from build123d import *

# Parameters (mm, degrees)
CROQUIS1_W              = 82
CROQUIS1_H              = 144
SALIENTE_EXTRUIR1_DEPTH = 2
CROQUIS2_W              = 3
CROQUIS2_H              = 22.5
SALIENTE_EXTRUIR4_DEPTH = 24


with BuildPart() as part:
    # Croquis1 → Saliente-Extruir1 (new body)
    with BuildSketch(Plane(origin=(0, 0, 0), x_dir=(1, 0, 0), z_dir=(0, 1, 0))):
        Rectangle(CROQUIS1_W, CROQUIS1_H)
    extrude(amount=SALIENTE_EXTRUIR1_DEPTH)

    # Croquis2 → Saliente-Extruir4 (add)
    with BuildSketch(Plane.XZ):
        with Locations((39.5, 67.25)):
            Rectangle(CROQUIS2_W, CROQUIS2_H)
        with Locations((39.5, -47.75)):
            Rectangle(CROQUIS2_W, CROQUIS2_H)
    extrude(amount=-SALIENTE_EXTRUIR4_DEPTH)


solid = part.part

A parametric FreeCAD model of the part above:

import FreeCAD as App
import Part
import Sketcher
from FreeCAD import Vector

doc = App.newDocument("Part")
body = doc.addObject("PartDesign::Body", "Body")

# Sketch on XZ plane
sketch1 = doc.addObject("Sketcher::SketchObject", "Sketch")
body.addObject(sketch1)
sketch1.AttachmentSupport = (doc.XZ_Plane, [""])
sketch1.MapMode = "FlatFace"
sketch1.addGeometry(Part.LineSegment(Vector(-41, -72, 0), Vector(-41, 72, 0)), False)
sketch1.addGeometry(Part.LineSegment(Vector(-41, 72, 0), Vector(41, 72, 0)), False)
sketch1.addGeometry(Part.LineSegment(Vector(41, 72, 0), Vector(41, -72, 0)), False)
sketch1.addGeometry(Part.LineSegment(Vector(41, -72, 0), Vector(-41, -72, 0)), False)
sketch1.addConstraint(Sketcher.Constraint("Coincident", 0, 2, 1, 1))
sketch1.addConstraint(Sketcher.Constraint("Coincident", 1, 2, 2, 1))
sketch1.addConstraint(Sketcher.Constraint("Coincident", 2, 2, 3, 1))
sketch1.addConstraint(Sketcher.Constraint("Coincident", 3, 2, 0, 1))
sketch1.addConstraint(Sketcher.Constraint("Vertical", 0))
sketch1.addConstraint(Sketcher.Constraint("Horizontal", 1))
sketch1.addConstraint(Sketcher.Constraint("Vertical", 2))
sketch1.addConstraint(Sketcher.Constraint("Horizontal", 3))
sketch1.addConstraint(Sketcher.Constraint("Symmetric", 0, 2, 2, 2, -1, 1))
sketch1.addConstraint(Sketcher.Constraint("DistanceX", 1, 1, 1, 2, 82.0))
sketch1.addConstraint(Sketcher.Constraint("DistanceY", 0, 1, 0, 2, 144.0))
pad1 = doc.addObject("PartDesign::Pad", "Pad")
body.addObject(pad1)
pad1.Profile = sketch1
pad1.Length = 2
pad1.Reversed = True

# Sketch on XZ plane
sketch2 = doc.addObject("Sketcher::SketchObject", "Sketch001")
body.addObject(sketch2)
sketch2.AttachmentSupport = (doc.XZ_Plane, [""])
sketch2.MapMode = "FlatFace"
sketch2.addGeometry(Part.LineSegment(Vector(38, 78.5, 0), Vector(38, 56, 0)), False)
sketch2.addGeometry(Part.LineSegment(Vector(38, 56, 0), Vector(41, 56, 0)), False)
sketch2.addGeometry(Part.LineSegment(Vector(41, 56, 0), Vector(41, 78.5, 0)), False)
sketch2.addGeometry(Part.LineSegment(Vector(41, 78.5, 0), Vector(38, 78.5, 0)), False)
sketch2.addGeometry(Part.LineSegment(Vector(38, -36.5, 0), Vector(38, -59, 0)), False)
sketch2.addGeometry(Part.LineSegment(Vector(38, -59, 0), Vector(41, -59, 0)), False)
sketch2.addGeometry(Part.LineSegment(Vector(41, -59, 0), Vector(41, -36.5, 0)), False)
sketch2.addGeometry(Part.LineSegment(Vector(41, -36.5, 0), Vector(38, -36.5, 0)), False)
sketch2.addConstraint(Sketcher.Constraint("Coincident", 0, 2, 1, 1))
sketch2.addConstraint(Sketcher.Constraint("Coincident", 1, 2, 2, 1))
sketch2.addConstraint(Sketcher.Constraint("Coincident", 2, 2, 3, 1))
sketch2.addConstraint(Sketcher.Constraint("Coincident", 3, 2, 0, 1))
sketch2.addConstraint(Sketcher.Constraint("Coincident", 4, 2, 5, 1))
sketch2.addConstraint(Sketcher.Constraint("Coincident", 5, 2, 6, 1))
sketch2.addConstraint(Sketcher.Constraint("Coincident", 6, 2, 7, 1))
sketch2.addConstraint(Sketcher.Constraint("Coincident", 7, 2, 4, 1))
sketch2.addConstraint(Sketcher.Constraint("Vertical", 0))
sketch2.addConstraint(Sketcher.Constraint("Horizontal", 1))
sketch2.addConstraint(Sketcher.Constraint("Vertical", 2))
sketch2.addConstraint(Sketcher.Constraint("Horizontal", 3))
sketch2.addConstraint(Sketcher.Constraint("Vertical", 4))
sketch2.addConstraint(Sketcher.Constraint("Horizontal", 5))
sketch2.addConstraint(Sketcher.Constraint("Vertical", 6))
sketch2.addConstraint(Sketcher.Constraint("Horizontal", 7))
sketch2.addConstraint(Sketcher.Constraint("Vertical", 3, 2, 4, 2))
sketch2.addConstraint(Sketcher.Constraint("Vertical", 2, 2, 5, 2))
sketch2.addConstraint(Sketcher.Constraint("Equal", 2, 4))
sketch2.addConstraint(Sketcher.Constraint("DistanceX", 1, 1, 1, 2, 3.0))
sketch2.addConstraint(Sketcher.Constraint("DistanceY", 0, 2, 0, 1, 22.5))
sketch2.addConstraint(Sketcher.Constraint("DistanceX", -1, 1, 0, 2, 38.0))
sketch2.addConstraint(Sketcher.Constraint("DistanceY", -1, 1, 0, 2, 56.0))
sketch2.addConstraint(Sketcher.Constraint("DistanceY", 4, 2, -1, 1, 59.0))
pad2 = doc.addObject("PartDesign::Pad", "Pad001")
body.addObject(pad2)
pad2.Profile = sketch2
pad2.Length = 24
pad2.Reversed = True

doc.recompute()
